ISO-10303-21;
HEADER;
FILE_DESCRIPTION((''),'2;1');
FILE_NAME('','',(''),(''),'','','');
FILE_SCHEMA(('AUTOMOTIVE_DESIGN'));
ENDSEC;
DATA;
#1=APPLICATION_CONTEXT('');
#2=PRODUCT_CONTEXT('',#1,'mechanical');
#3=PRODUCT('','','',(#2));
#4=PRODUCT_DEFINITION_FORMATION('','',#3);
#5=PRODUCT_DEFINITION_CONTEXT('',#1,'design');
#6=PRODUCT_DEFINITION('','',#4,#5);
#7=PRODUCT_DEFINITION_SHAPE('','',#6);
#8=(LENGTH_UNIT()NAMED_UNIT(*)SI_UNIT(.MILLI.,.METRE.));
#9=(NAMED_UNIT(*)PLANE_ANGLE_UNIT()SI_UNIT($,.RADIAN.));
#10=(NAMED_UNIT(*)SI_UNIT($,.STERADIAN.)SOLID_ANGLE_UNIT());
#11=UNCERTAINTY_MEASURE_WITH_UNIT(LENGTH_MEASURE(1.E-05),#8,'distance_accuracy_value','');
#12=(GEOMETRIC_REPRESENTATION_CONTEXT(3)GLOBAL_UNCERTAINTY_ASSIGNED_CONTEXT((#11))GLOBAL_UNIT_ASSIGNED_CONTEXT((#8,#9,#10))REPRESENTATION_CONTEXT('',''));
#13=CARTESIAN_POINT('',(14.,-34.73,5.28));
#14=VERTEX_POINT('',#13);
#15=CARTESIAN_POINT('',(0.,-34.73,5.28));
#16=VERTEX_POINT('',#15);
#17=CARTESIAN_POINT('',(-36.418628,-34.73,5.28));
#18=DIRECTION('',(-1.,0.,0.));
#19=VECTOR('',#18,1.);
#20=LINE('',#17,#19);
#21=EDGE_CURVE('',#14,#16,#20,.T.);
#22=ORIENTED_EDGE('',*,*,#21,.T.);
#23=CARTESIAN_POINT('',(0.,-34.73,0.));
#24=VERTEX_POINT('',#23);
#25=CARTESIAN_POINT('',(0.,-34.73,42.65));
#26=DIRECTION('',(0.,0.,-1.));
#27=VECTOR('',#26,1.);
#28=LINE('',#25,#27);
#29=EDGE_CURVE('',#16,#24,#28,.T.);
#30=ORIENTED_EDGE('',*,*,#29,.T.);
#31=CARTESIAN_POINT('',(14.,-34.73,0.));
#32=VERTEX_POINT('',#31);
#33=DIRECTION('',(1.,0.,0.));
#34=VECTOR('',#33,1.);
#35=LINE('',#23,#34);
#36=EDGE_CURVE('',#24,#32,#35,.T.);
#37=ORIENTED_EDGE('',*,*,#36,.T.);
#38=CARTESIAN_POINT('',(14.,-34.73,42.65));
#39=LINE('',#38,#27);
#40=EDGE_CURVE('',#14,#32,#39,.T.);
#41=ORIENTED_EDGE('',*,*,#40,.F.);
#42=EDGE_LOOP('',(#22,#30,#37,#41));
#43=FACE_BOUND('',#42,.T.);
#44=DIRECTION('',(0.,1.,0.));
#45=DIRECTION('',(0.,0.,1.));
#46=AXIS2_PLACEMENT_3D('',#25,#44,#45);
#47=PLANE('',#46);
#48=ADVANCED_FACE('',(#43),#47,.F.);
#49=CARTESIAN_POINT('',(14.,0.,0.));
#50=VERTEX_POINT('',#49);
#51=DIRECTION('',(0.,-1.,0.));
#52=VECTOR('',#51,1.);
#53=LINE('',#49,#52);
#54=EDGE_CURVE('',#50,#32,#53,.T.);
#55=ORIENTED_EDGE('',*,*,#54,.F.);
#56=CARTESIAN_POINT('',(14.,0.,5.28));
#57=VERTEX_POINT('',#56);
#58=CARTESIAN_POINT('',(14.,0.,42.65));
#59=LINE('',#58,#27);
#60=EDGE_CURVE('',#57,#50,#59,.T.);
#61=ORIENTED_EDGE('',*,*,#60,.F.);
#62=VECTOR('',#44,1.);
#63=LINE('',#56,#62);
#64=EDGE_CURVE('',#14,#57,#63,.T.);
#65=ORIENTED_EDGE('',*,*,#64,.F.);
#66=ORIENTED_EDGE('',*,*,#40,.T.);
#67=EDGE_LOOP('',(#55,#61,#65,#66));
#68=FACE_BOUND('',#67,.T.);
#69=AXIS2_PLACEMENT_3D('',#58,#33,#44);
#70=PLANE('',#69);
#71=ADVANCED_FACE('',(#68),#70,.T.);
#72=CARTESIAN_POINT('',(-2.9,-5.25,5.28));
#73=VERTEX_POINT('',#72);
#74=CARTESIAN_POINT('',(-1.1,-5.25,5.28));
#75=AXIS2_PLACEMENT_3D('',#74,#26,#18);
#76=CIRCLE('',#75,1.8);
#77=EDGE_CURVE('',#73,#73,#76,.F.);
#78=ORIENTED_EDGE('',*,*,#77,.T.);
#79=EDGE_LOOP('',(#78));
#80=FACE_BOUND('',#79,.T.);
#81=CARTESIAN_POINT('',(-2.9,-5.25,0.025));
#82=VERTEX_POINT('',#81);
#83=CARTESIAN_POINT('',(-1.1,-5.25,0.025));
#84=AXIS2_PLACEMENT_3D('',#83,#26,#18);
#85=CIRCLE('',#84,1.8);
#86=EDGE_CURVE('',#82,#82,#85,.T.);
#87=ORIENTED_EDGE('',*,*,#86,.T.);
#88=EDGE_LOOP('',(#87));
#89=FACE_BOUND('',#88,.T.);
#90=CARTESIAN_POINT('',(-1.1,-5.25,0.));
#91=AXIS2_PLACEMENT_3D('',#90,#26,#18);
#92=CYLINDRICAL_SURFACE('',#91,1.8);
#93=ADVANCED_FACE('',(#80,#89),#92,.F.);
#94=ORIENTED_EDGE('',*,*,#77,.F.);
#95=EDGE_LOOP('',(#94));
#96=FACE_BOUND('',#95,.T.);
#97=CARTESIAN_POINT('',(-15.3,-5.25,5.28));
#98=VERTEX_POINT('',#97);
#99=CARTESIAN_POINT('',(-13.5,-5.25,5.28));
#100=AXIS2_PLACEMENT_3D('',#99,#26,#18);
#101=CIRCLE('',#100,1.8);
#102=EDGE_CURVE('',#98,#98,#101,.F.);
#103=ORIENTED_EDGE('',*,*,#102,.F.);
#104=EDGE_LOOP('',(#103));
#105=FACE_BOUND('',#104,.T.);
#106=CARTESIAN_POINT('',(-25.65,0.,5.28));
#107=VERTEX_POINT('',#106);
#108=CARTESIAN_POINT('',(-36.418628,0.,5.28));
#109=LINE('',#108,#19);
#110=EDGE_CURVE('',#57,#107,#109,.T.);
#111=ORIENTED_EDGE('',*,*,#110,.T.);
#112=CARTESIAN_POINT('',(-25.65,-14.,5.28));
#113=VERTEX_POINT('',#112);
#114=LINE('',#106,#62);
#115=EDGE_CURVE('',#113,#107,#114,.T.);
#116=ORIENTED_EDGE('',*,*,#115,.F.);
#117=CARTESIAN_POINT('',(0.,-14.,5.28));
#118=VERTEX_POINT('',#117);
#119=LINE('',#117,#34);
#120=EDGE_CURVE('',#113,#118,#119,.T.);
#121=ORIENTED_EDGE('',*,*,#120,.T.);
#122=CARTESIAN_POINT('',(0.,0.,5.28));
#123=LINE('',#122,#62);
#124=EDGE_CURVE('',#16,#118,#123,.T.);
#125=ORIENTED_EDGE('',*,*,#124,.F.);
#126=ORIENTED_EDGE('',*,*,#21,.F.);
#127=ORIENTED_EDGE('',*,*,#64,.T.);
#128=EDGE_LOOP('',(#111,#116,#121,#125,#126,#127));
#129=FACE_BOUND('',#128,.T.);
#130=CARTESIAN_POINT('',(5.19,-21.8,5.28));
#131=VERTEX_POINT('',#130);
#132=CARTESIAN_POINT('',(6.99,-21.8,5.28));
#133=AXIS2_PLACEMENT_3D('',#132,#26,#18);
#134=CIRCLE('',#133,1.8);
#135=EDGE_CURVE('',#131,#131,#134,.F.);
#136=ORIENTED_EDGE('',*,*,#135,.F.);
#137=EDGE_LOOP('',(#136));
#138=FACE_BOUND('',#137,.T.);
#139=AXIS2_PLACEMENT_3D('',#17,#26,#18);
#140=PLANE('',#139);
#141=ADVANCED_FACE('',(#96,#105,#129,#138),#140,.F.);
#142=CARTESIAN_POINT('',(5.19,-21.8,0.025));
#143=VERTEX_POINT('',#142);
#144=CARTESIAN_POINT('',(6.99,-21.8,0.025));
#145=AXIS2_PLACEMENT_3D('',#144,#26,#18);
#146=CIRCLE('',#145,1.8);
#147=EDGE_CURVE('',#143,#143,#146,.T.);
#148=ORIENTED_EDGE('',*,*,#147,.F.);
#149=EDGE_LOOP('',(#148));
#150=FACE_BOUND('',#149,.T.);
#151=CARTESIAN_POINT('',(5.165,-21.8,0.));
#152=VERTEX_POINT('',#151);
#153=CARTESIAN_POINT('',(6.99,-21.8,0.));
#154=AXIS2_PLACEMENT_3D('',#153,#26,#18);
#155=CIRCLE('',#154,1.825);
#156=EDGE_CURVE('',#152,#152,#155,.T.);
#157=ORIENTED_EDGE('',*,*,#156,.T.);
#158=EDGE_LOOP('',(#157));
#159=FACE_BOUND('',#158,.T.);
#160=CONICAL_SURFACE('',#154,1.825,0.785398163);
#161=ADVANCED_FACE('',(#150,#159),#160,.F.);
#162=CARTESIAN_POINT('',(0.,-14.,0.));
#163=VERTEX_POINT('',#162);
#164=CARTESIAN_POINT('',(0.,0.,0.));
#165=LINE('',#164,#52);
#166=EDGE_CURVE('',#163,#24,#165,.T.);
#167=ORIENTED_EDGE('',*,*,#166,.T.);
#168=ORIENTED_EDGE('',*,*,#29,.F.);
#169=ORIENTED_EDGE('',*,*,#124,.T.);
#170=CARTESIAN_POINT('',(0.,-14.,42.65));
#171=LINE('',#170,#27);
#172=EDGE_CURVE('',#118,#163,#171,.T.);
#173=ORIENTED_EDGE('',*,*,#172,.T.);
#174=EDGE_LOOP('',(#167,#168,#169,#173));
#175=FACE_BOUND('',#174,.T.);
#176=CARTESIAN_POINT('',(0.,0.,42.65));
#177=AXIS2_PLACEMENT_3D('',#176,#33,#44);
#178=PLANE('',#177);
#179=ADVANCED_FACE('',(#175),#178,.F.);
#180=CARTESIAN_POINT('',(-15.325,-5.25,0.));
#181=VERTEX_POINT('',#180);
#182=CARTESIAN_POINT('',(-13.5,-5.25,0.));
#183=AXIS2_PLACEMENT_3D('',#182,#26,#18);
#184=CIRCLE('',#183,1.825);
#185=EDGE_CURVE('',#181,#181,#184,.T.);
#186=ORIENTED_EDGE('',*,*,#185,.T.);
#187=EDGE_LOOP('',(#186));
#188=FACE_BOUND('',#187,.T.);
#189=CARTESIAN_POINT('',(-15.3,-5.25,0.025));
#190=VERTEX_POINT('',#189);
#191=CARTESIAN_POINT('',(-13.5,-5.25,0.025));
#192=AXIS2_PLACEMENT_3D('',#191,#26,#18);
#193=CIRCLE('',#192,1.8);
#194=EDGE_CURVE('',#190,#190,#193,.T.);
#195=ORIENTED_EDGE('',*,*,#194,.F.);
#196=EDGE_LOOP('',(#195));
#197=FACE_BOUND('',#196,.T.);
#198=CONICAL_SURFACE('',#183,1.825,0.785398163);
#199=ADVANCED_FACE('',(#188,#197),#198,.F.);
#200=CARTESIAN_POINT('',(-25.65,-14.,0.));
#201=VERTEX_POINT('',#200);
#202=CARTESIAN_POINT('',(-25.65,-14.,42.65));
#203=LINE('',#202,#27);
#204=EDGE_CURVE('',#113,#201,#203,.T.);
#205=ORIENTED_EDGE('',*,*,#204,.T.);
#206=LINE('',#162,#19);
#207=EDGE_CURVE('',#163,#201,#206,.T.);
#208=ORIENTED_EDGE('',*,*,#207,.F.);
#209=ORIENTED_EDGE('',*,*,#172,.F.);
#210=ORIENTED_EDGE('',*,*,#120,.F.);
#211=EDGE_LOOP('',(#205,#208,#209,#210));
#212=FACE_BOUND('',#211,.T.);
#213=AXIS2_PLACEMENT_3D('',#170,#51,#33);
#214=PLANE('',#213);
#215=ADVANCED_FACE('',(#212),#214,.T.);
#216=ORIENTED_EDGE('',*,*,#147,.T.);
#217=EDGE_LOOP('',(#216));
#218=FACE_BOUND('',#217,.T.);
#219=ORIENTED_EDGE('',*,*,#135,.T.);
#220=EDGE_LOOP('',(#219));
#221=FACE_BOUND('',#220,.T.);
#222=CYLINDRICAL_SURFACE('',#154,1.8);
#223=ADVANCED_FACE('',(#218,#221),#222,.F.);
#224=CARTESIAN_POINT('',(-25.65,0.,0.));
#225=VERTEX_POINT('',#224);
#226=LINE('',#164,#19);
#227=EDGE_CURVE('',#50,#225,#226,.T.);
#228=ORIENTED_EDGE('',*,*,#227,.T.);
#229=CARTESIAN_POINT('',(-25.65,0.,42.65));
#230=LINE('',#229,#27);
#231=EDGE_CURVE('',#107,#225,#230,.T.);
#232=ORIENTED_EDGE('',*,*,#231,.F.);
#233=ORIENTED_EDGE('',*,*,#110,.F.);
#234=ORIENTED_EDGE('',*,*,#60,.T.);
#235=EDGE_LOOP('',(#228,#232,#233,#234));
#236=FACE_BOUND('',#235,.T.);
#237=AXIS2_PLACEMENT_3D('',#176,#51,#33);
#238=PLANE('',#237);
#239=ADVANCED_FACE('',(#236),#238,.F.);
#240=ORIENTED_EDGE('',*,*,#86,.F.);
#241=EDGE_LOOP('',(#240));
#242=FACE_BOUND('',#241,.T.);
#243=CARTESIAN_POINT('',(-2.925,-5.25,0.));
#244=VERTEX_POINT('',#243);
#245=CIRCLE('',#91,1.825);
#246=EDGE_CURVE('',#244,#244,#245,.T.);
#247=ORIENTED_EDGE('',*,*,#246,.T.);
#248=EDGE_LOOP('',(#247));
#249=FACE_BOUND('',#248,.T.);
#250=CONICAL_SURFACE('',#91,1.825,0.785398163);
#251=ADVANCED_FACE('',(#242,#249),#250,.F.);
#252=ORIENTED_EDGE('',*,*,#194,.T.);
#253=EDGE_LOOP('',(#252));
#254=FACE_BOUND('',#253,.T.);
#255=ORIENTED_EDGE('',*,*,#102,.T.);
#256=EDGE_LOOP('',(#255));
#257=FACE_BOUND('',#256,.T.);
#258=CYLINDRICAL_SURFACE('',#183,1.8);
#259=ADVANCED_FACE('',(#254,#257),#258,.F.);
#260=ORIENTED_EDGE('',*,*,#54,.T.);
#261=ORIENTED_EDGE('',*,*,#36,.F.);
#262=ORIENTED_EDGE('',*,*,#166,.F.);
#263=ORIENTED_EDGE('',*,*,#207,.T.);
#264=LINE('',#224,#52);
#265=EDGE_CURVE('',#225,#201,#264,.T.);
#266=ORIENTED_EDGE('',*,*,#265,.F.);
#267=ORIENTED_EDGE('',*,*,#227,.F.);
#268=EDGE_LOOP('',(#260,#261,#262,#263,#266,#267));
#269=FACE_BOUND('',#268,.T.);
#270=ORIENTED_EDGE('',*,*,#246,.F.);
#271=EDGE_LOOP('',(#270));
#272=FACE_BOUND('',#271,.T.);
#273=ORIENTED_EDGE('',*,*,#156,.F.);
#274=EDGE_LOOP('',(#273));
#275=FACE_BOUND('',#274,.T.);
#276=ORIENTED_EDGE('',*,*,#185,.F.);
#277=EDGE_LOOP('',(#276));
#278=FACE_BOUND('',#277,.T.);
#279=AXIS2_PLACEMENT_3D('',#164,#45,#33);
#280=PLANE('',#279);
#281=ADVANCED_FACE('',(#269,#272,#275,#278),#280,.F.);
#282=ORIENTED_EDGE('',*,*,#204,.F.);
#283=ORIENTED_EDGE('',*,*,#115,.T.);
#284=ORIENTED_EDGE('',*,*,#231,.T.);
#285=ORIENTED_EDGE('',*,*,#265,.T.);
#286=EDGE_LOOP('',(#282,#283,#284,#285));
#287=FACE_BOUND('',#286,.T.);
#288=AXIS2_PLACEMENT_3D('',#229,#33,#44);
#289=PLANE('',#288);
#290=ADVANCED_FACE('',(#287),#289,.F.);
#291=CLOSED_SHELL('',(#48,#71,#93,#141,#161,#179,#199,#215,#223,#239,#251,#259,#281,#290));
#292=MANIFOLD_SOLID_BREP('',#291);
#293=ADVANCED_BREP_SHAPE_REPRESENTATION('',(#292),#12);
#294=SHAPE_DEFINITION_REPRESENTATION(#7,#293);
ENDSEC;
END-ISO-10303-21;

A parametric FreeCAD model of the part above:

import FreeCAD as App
import Part
import Sketcher
from FreeCAD import Vector

doc = App.newDocument("Part")
body = doc.addObject("PartDesign::Body", "Body")

# Sketch on XY plane
sketch1 = doc.addObject("Sketcher::SketchObject", "Sketch")
body.addObject(sketch1)
sketch1.AttachmentSupport = (doc.XY_Plane, [""])
sketch1.MapMode = "FlatFace"
sketch1.addGeometry([
    Part.LineSegment(Vector(-26, 0, 0), Vector(-26, -14, 0)),  # 0
    Part.LineSegment(Vector(-26, -14, 0), Vector(0, -14, 0)),  # 1
    Part.LineSegment(Vector(0, -14, 0), Vector(0, -35, 0)),  # 2
    Part.LineSegment(Vector(0, -35, 0), Vector(14, -35, 0)),  # 3
    Part.LineSegment(Vector(14, -35, 0), Vector(14, 0, 0)),  # 4
    Part.LineSegment(Vector(14, 0, 0), Vector(-26, 0, 0)),  # 5
], False)
sketch1.addConstraint([
    Sketcher.Constraint("Coincident", 0, 2, 1, 1),
    Sketcher.Constraint("Coincident", 1, 2, 2, 1),
    Sketcher.Constraint("Coincident", 2, 2, 3, 1),
    Sketcher.Constraint("Coincident", 3, 2, 4, 1),
    Sketcher.Constraint("Coincident", 4, 2, 5, 1),
    Sketcher.Constraint("Coincident", 5, 2, 0, 1),
    Sketcher.Constraint("Vertical", 0),
    Sketcher.Constraint("Horizontal", 1),
    Sketcher.Constraint("Vertical", 2),
    Sketcher.Constraint("Horizontal", 3),
    Sketcher.Constraint("Vertical", 4),
    Sketcher.Constraint("Horizontal", 5),
    Sketcher.Constraint("PointOnObject", 1, 2, -2),
    Sketcher.Constraint("PointOnObject", 4, 2, -1),
    Sketcher.Constraint("Equal", 3, 0),
    Sketcher.Constraint("DistanceX", 3, 1, 3, 2, 14.0),
    Sketcher.Constraint("DistanceX", 1, 1, 1, 2, 25.65),
    Sketcher.Constraint("DistanceY", 2, 2, 2, 1, 20.73),
])
pad1 = doc.addObject("PartDesign::Pad", "Pad")
body.addObject(pad1)
pad1.Profile = sketch1
pad1.Length = 42.65

# Sketch on XZ plane
sketch2 = doc.addObject("Sketcher::SketchObject", "Sketch001")
body.addObject(sketch2)
sketch2.AttachmentSupport = (doc.XZ_Plane, [""])
sketch2.MapMode = "FlatFace"
sketch2.AttachmentOffset = App.Placement(Vector(0, 0, 14), App.Rotation())
sketch2.addGeometry(Part.Circle(Vector(-15, 28, 0), Vector(0, 0, 1), 6), False)
sketch2.addConstraint([
    Sketcher.Constraint("Diameter", 0, 12.85),
    Sketcher.Constraint("DistanceX", 0, 3, -1, 1, 14.665),
    Sketcher.Constraint("DistanceY", -1, 1, 0, 3, 27.725),
])
pocket1 = doc.addObject("PartDesign::Pocket", "Pocket")
body.addObject(pocket1)
pocket1.Profile = sketch2
pocket1.Length = 42.65

# Sketch on XZ plane
sketch3 = doc.addObject("Sketcher::SketchObject", "Sketch002")
body.addObject(sketch3)
sketch3.AttachmentSupport = (doc.XZ_Plane, [""])
sketch3.MapMode = "FlatFace"
sketch3.AttachmentOffset = App.Placement(Vector(0, 0, 14), App.Rotation())
sketch3.addGeometry([
    Part.LineSegment(Vector(-17.6, 42.6, 0), Vector(-17.6, 12.7, 0)),
    Part.LineSegment(Vector(-17.6, 12.7, 0), Vector(-15.8, 12.7, 0)),
    Part.LineSegment(Vector(-15.8, 12.7, 0), Vector(-15.8, 42.6, 0)),
    Part.LineSegment(Vector(-15.8, 42.6, 0), Vector(-17.6, 42.6, 0)),
], False)
sketch3.addConstraint([
    Sketcher.Constraint("Coincident", 0, 2, 1, 1),
    Sketcher.Constraint("Coincident", 1, 2, 2, 1),
    Sketcher.Constraint("Coincident", 2, 2, 3, 1),
    Sketcher.Constraint("Coincident", 3, 2, 0, 1),
    Sketcher.Constraint("Vertical", 0),
    Sketcher.Constraint("Horizontal", 1),
    Sketcher.Constraint("Vertical", 2),
    Sketcher.Constraint("Horizontal", 3),
    Sketcher.Constraint("DistanceY", 0, 2, 0, 1, 30.0),
    Sketcher.Constraint("DistanceX", 1, 1, 1, 2, 1.9),
    Sketcher.Constraint("DistanceX", 0, 2, -1, 1, 17.65),
    Sketcher.Constraint("DistanceY", -1, 1, 0, 2, 12.65),
])
pocket2 = doc.addObject("PartDesign::Pocket", "Pocket001")
body.addObject(pocket2)
pocket2.Profile = sketch3
pocket2.Length = 42.65

# Sketch on YZ plane
sketch4 = doc.addObject("Sketcher::SketchObject", "Sketch003")
body.addObject(sketch4)
sketch4.AttachmentSupport = (doc.YZ_Plane, [""])
sketch4.MapMode = "FlatFace"
sketch4.addGeometry(Part.Circle(Vector(-22, 19, 0), Vector(0, 0, 1), 6), False)
sketch4.addConstraint([
    Sketcher.Constraint("Diameter", 0, 12.85),
    Sketcher.Constraint("DistanceX", 0, 3, -1, 1, 21.745),
    Sketcher.Constraint("DistanceY", -1, 1, 0, 3, 18.725),
])
pocket3 = doc.addObject("PartDesign::Pocket", "Pocket002")
body.addObject(pocket3)
pocket3.Profile = sketch4
pocket3.Length = 42.65
pocket3.Reversed = True

# Sketch on YZ plane
sketch5 = doc.addObject("Sketcher::SketchObject", "Sketch004")
body.addObject(sketch5)
sketch5.AttachmentSupport = (doc.YZ_Plane, [""])
sketch5.MapMode = "FlatFace"
sketch5.addGeometry([
    Part.LineSegment(Vector(-24.8, 10.7, 0), Vector(-26.7, 10.7, 0)),
    Part.LineSegment(Vector(-26.7, 10.7, 0), Vector(-26.7, 42.6, 0)),
    Part.LineSegment(Vector(-26.7, 42.6, 0), Vector(-24.8, 42.6, 0)),
    Part.LineSegment(Vector(-24.8, 42.6, 0), Vector(-24.8, 10.7, 0)),
], False)
sketch5.addConstraint([
    Sketcher.Constraint("Coincident", 0, 2, 1, 1),
    Sketcher.Constraint("Coincident", 1, 2, 2, 1),
    Sketcher.Constraint("Coincident", 2, 2, 3, 1),
    Sketcher.Constraint("Coincident", 3, 2, 0, 1),
    Sketcher.Constraint("Horizontal", 0),
    Sketcher.Constraint("Vertical", 1),
    Sketcher.Constraint("Horizontal", 2),
    Sketcher.Constraint("Vertical", 3),
    Sketcher.Constraint("DistanceY", 1, 1, 1, 2, 32.0),
    Sketcher.Constraint("DistanceX", 0, 2, 0, 1, 1.9),
    Sketcher.Constraint("DistanceX", 0, 2, -1, 1, 26.73),
    Sketcher.Constraint("DistanceY", -1, 1, 0, 2, 10.65),
])
pocket4 = doc.addObject("PartDesign::Pocket", "Pocket003")
body.addObject(pocket4)
pocket4.Profile = sketch5
pocket4.Length = 42.65
pocket4.Reversed = True

# Sketch on XY plane
sketch6 = doc.addObject("Sketcher::SketchObject", "Sketch005")
body.addObject(sketch6)
sketch6.AttachmentSupport = (doc.XY_Plane, [""])
sketch6.MapMode = "FlatFace"
sketch6.addGeometry([
    Part.Circle(Vector(-1.1, -5.2, 0), Vector(0, 0, 1), 1.8),
    Part.Circle(Vector(-13.5, -5.2, 0), Vector(0, 0, 1), 1.8),
    Part.Circle(Vector(7, -21.8, 0), Vector(0, 0, 1), 1.8),
], False)
sketch6.addConstraint([
    Sketcher.Constraint("Equal", 0, 1),
    Sketcher.Constraint("Equal", 1, 2),
    Sketcher.Constraint("Horizontal", 0, 3, 1, 3),
    Sketcher.Constraint("Diameter", 0, 3.6),
    Sketcher.Constraint("DistanceX", 0, 3, -1, 1, 1.1),
    Sketcher.Constraint("DistanceX", 1, 3, -1, 1, 13.5),
    Sketcher.Constraint("DistanceY", 2, 3, -1, 1, 21.8),
    Sketcher.Constraint("DistanceY", 0, 3, -1, 1, 5.25),
    Sketcher.Constraint("DistanceX", -1, 1, 2, 3, 6.99),
])
doc.recompute()
hole = doc.addObject("PartDesign::Hole", "Hole")
body.addObject(hole)
hole.Profile = sketch6
hole.ThreadType = "None"
hole.Diameter = 3.6
hole.DepthType = "Dimension"
hole.Depth = 10
hole.DrillPoint = "Angled"
hole.DrillPointAngle = 118
hole.HoleCutType = "Countersink"
hole.HoleCutDiameter = 3.65
hole.HoleCutCountersinkAngle = 90
hole.Reversed = True

# Sketch on XZ plane
sketch7 = doc.addObject("Sketcher::SketchObject", "Sketch006")
body.addObject(sketch7)
sketch7.AttachmentSupport = (doc.XZ_Plane, [""])
sketch7.MapMode = "FlatFace"
sketch7.addGeometry([
    Part.LineSegment(Vector(-36, 5, 0), Vector(-36, 46, 0)),
    Part.LineSegment(Vector(-36, 46, 0), Vector(26, 46, 0)),
    Part.LineSegment(Vector(26, 46, 0), Vector(26, 5, 0)),
    Part.LineSegment(Vector(26, 5, 0), Vector(-36, 5, 0)),
], False)
sketch7.addConstraint([
    Sketcher.Constraint("Coincident", 0, 2, 1, 1),
    Sketcher.Constraint("Coincident", 1, 2, 2, 1),
    Sketcher.Constraint("Coincident", 2, 2, 3, 1),
    Sketcher.Constraint("Coincident", 3, 2, 0, 1),
    Sketcher.Constraint("Vertical", 0),
    Sketcher.Constraint("Horizontal", 1),
    Sketcher.Constraint("Vertical", 2),
    Sketcher.Constraint("Horizontal", 3),
    Sketcher.Constraint("DistanceY", -1, 1, 2, 2, 5.28),
    Sketcher.Constraint("DistanceY", 0, 1, 0, 2, 40.553489),
    Sketcher.Constraint("DistanceX", 1, 1, 1, 2, 61.993653),
    Sketcher.Constraint("DistanceX", 0, 2, -1, 1, 36.418628),
])
pocket5 = doc.addObject("PartDesign::Pocket", "Pocket004")
body.addObject(pocket5)
pocket5.Profile = sketch7
pocket5.Type = "ThroughAll"
pocket5.Reversed = True

doc.recompute()
